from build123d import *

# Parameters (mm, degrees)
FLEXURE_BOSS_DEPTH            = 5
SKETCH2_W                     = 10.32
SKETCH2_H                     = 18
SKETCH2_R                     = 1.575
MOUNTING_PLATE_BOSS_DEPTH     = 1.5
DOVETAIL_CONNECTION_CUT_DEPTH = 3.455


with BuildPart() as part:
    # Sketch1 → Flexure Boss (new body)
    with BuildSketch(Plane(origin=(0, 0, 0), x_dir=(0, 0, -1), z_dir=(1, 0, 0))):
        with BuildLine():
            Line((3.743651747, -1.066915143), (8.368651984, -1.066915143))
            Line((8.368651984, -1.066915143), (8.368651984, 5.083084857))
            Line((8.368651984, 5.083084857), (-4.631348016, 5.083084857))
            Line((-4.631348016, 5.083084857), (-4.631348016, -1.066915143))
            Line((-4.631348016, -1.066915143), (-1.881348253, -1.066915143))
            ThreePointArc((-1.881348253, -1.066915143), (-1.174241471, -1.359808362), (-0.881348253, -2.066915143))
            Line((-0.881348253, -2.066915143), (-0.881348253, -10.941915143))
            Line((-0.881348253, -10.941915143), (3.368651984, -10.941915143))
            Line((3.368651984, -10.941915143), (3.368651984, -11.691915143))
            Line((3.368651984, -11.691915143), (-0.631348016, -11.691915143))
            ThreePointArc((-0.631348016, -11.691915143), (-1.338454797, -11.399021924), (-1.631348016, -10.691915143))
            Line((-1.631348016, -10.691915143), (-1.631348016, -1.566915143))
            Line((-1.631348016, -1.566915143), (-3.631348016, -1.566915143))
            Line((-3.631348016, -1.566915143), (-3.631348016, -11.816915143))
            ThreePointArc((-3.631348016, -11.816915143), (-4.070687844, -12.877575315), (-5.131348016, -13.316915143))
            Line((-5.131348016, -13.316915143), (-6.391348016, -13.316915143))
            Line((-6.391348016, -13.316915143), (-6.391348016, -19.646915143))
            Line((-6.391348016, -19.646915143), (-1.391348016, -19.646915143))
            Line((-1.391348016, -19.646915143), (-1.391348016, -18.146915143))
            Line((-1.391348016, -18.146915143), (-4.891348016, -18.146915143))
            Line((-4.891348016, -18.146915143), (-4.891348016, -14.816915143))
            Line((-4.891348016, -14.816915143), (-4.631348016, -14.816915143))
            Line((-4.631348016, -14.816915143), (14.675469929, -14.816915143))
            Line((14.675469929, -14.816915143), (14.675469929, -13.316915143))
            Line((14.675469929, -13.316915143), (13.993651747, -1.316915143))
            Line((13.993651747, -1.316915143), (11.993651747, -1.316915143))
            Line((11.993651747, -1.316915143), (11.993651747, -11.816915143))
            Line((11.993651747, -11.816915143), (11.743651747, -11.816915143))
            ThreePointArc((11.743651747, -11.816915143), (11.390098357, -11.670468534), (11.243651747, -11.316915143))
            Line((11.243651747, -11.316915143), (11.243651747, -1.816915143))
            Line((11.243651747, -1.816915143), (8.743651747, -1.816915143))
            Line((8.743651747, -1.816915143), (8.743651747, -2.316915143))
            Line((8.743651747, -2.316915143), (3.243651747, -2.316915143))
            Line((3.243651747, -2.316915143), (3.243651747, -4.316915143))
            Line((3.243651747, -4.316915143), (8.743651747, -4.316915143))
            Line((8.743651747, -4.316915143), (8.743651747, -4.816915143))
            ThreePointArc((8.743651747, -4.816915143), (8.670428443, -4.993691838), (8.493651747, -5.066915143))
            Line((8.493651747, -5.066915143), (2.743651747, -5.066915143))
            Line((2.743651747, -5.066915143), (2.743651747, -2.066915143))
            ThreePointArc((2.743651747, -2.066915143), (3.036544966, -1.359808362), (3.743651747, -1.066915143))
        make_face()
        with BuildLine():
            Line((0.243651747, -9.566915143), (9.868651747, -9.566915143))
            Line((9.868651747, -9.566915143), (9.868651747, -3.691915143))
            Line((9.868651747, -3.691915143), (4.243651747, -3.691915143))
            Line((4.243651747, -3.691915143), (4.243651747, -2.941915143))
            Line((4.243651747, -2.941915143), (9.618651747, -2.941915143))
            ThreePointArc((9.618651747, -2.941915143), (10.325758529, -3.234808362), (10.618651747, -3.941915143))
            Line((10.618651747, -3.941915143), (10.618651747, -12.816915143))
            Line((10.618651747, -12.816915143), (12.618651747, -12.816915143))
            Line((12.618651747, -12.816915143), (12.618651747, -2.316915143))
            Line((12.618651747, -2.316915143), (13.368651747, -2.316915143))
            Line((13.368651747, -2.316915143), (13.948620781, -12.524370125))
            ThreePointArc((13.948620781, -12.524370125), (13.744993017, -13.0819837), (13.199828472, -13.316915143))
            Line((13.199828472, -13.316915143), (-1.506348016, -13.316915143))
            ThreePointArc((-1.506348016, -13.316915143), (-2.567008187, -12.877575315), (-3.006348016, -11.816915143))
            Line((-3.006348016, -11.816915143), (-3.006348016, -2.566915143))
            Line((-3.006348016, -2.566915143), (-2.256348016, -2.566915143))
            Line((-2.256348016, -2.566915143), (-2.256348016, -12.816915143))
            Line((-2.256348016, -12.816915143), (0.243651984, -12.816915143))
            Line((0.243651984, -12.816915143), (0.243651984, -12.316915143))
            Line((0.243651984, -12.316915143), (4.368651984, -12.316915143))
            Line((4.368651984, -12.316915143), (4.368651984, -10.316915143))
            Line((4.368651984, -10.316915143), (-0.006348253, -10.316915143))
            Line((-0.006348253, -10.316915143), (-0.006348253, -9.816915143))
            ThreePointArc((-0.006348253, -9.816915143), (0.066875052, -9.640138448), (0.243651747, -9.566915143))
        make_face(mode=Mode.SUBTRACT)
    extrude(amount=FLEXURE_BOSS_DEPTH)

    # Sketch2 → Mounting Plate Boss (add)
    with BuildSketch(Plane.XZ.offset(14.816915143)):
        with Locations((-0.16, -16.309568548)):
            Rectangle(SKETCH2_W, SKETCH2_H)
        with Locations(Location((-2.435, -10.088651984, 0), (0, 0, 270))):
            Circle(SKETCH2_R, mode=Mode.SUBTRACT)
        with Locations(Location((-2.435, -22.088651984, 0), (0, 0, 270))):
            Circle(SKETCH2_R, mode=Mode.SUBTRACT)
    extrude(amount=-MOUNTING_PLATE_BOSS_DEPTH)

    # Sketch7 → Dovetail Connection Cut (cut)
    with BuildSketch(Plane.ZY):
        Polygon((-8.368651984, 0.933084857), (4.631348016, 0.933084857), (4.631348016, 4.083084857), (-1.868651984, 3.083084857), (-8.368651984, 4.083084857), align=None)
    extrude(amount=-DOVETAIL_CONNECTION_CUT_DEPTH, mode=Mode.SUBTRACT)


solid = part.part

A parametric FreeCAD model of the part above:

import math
import FreeCAD as App
import Part
import Sketcher


def add_polygon(sketch, points):
    """Adds a closed chain of lines whose ends are joined by coincident constraints."""
    first, n = sketch.GeometryCount, len(points)
    for a, b in zip(points, points[1:] + points[:1]):
        sketch.addGeometry(Part.LineSegment(App.Vector(*a, 0), App.Vector(*b, 0)), False)
    for i in range(n):
        sketch.addConstraint(Sketcher.Constraint("Coincident", first + i, 2, first + (i + 1) % n, 1))

doc = App.newDocument("Part")
body = doc.addObject("PartDesign::Body", "Body")

sketch1 = doc.addObject("Sketcher::SketchObject", "Sketch")
body.addObject(sketch1)
sketch1.AttachmentSupport = (doc.YZ_Plane, [""])
sketch1.MapMode = "FlatFace"
sketch1.addGeometry([
    Part.LineSegment(App.Vector(-1.07, -3.74, 0), App.Vector(-1.07, -8.37, 0)),
    Part.LineSegment(App.Vector(-1.07, -8.37, 0), App.Vector(5.08, -8.37, 0)),
    Part.LineSegment(App.Vector(5.08, -8.37, 0), App.Vector(5.08, 4.63, 0)),
    Part.LineSegment(App.Vector(5.08, 4.63, 0), App.Vector(-1.07, 4.63, 0)),
    Part.LineSegment(App.Vector(-1.07, 4.63, 0), App.Vector(-1.07, 1.88, 0)),
    Part.ArcOfCircle(Part.Circle(App.Vector(-2.07, 1.88, 0), App.Vector(0, 0, 1), 1), math.radians(-90), math.radians(0)),
    Part.LineSegment(App.Vector(-2.07, 0.88, 0), App.Vector(-10.94, 0.88, 0)),
    Part.LineSegment(App.Vector(-10.94, 0.88, 0), App.Vector(-10.94, -3.37, 0)),
    Part.LineSegment(App.Vector(-10.94, -3.37, 0), App.Vector(-11.69, -3.37, 0)),
    Part.LineSegment(App.Vector(-11.69, -3.37, 0), App.Vector(-11.69, 0.63, 0)),
    Part.ArcOfCircle(Part.Circle(App.Vector(-10.69, 0.63, 0), App.Vector(0, 0, 1), 1), math.radians(90), math.radians(180)),
    Part.LineSegment(App.Vector(-10.69, 1.63, 0), App.Vector(-1.57, 1.63, 0)),
    Part.LineSegment(App.Vector(-1.57, 1.63, 0), App.Vector(-1.57, 3.63, 0)),
    Part.LineSegment(App.Vector(-1.57, 3.63, 0), App.Vector(-11.82, 3.63, 0)),
    Part.ArcOfCircle(Part.Circle(App.Vector(-11.82, 5.13, 0), App.Vector(0, 0, 1), 1.5), math.radians(180), math.radians(270)),
    Part.LineSegment(App.Vector(-13.32, 5.13, 0), App.Vector(-13.32, 6.39, 0)),
    Part.LineSegment(App.Vector(-13.32, 6.39, 0), App.Vector(-19.65, 6.39, 0)),
    Part.LineSegment(App.Vector(-19.65, 6.39, 0), App.Vector(-19.65, 1.39, 0)),
    Part.LineSegment(App.Vector(-19.65, 1.39, 0), App.Vector(-18.15, 1.39, 0)),
    Part.LineSegment(App.Vector(-18.15, 1.39, 0), App.Vector(-18.15, 4.89, 0)),
    Part.LineSegment(App.Vector(-18.15, 4.89, 0), App.Vector(-14.82, 4.89, 0)),
    Part.LineSegment(App.Vector(-14.82, 4.89, 0), App.Vector(-14.82, -14.68, 0)),
    Part.LineSegment(App.Vector(-14.82, -14.68, 0), App.Vector(-13.32, -14.68, 0)),
    Part.LineSegment(App.Vector(-13.32, -14.68, 0), App.Vector(-1.32, -13.99, 0)),
    Part.LineSegment(App.Vector(-1.32, -13.99, 0), App.Vector(-1.32, -11.99, 0)),
    Part.LineSegment(App.Vector(-1.32, -11.99, 0), App.Vector(-11.82, -11.99, 0)),
    Part.LineSegment(App.Vector(-11.82, -11.99, 0), App.Vector(-11.82, -11.74, 0)),
    Part.ArcOfCircle(Part.Circle(App.Vector(-11.32, -11.74, 0), App.Vector(0, 0, 1), 0.5), math.radians(90), math.radians(180)),
    Part.LineSegment(App.Vector(-11.32, -11.24, 0), App.Vector(-1.82, -11.24, 0)),
    Part.LineSegment(App.Vector(-1.82, -11.24, 0), App.Vector(-1.82, -8.74, 0)),
    Part.LineSegment(App.Vector(-1.82, -8.74, 0), App.Vector(-2.32, -8.74, 0)),
    Part.LineSegment(App.Vector(-2.32, -8.74, 0), App.Vector(-2.32, -3.24, 0)),
    Part.LineSegment(App.Vector(-2.32, -3.24, 0), App.Vector(-4.32, -3.24, 0)),
    Part.LineSegment(App.Vector(-4.32, -3.24, 0), App.Vector(-4.32, -8.74, 0)),
    Part.LineSegment(App.Vector(-4.32, -8.74, 0), App.Vector(-4.82, -8.74, 0)),
    Part.ArcOfCircle(Part.Circle(App.Vector(-4.82, -8.49, 0), App.Vector(0, 0, 1), 0.25), math.radians(180), math.radians(270)),
    Part.LineSegment(App.Vector(-5.07, -8.49, 0), App.Vector(-5.07, -2.74, 0)),
    Part.LineSegment(App.Vector(-5.07, -2.74, 0), App.Vector(-2.07, -2.74, 0)),
    Part.ArcOfCircle(Part.Circle(App.Vector(-2.07, -3.74, 0), App.Vector(0, 0, 1), 1), math.radians(0), math.radians(90)),
    Part.ArcOfCircle(Part.Circle(App.Vector(-9.82, -0.24, 0), App.Vector(0, 0, 1), 0.25), math.radians(0), math.radians(90)),
    Part.LineSegment(App.Vector(-9.57, -0.24, 0), App.Vector(-9.57, -9.87, 0)),
    Part.LineSegment(App.Vector(-9.57, -9.87, 0), App.Vector(-3.69, -9.87, 0)),
    Part.LineSegment(App.Vector(-3.69, -9.87, 0), App.Vector(-3.69, -4.24, 0)),
    Part.LineSegment(App.Vector(-3.69, -4.24, 0), App.Vector(-2.94, -4.24, 0)),
    Part.LineSegment(App.Vector(-2.94, -4.24, 0), App.Vector(-2.94, -9.62, 0)),
    Part.ArcOfCircle(Part.Circle(App.Vector(-3.94, -9.62, 0), App.Vector(0, 0, 1), 1), math.radians(-90), math.radians(0)),
    Part.LineSegment(App.Vector(-3.94, -10.62, 0), App.Vector(-12.82, -10.62, 0)),
    Part.LineSegment(App.Vector(-12.82, -10.62, 0), App.Vector(-12.82, -12.62, 0)),
    Part.LineSegment(App.Vector(-12.82, -12.62, 0), App.Vector(-2.32, -12.62, 0)),
    Part.LineSegment(App.Vector(-2.32, -12.62, 0), App.Vector(-2.32, -13.37, 0)),
    Part.LineSegment(App.Vector(-2.32, -13.37, 0), App.Vector(-12.52, -13.95, 0)),
    Part.ArcOfCircle(Part.Circle(App.Vector(-12.57, -13.2, 0), App.Vector(0, 0, 1), 0.75), math.radians(-180), math.radians(-87)),
    Part.LineSegment(App.Vector(-13.32, -13.2, 0), App.Vector(-13.32, 1.51, 0)),
    Part.ArcOfCircle(Part.Circle(App.Vector(-11.82, 1.51, 0), App.Vector(0, 0, 1), 1.5), math.radians(90), math.radians(180)),
    Part.LineSegment(App.Vector(-11.82, 3.01, 0), App.Vector(-2.57, 3.01, 0)),
    Part.LineSegment(App.Vector(-2.57, 3.01, 0), App.Vector(-2.57, 2.26, 0)),
    Part.LineSegment(App.Vector(-2.57, 2.26, 0), App.Vector(-12.82, 2.26, 0)),
    Part.LineSegment(App.Vector(-12.82, 2.26, 0), App.Vector(-12.82, -0.24, 0)),
    Part.LineSegment(App.Vector(-12.82, -0.24, 0), App.Vector(-12.32, -0.24, 0)),
    Part.LineSegment(App.Vector(-12.32, -0.24, 0), App.Vector(-12.32, -4.37, 0)),
    Part.LineSegment(App.Vector(-12.32, -4.37, 0), App.Vector(-10.32, -4.37, 0)),
    Part.LineSegment(App.Vector(-10.32, -4.37, 0), App.Vector(-10.32, 0.01, 0)),
    Part.LineSegment(App.Vector(-10.32, 0.01, 0), App.Vector(-9.82, 0.01, 0)),
], False)
sketch1.addConstraint([
    Sketcher.Constraint("Coincident", 0, 2, 1, 1),
    Sketcher.Constraint("Coincident", 1, 2, 2, 1),
    Sketcher.Constraint("Coincident", 2, 2, 3, 1),
    Sketcher.Constraint("Coincident", 3, 2, 4, 1),
    Sketcher.Constraint("Tangent", 4, 2, 5, 2),
    Sketcher.Constraint("Tangent", 5, 1, 6, 1),
    Sketcher.Constraint("Coincident", 6, 2, 7, 1),
    Sketcher.Constraint("Coincident", 7, 2, 8, 1),
    Sketcher.Constraint("Coincident", 8, 2, 9, 1),
    Sketcher.Constraint("Tangent", 9, 2, 10, 2),
    Sketcher.Constraint("Tangent", 10, 1, 11, 1),
    Sketcher.Constraint("Coincident", 11, 2, 12, 1),
    Sketcher.Constraint("Coincident", 12, 2, 13, 1),
    Sketcher.Constraint("Tangent", 13, 2, 14, 2),
    Sketcher.Constraint("Tangent", 14, 1, 15, 1),
    Sketcher.Constraint("Coincident", 15, 2, 16, 1),
    Sketcher.Constraint("Coincident", 16, 2, 17, 1),
    Sketcher.Constraint("Coincident", 17, 2, 18, 1),
    Sketcher.Constraint("Coincident", 18, 2, 19, 1),
    Sketcher.Constraint("Coincident", 19, 2, 20, 1),
    Sketcher.Constraint("Coincident", 20, 2, 21, 1),
    Sketcher.Constraint("Coincident", 21, 2, 22, 1),
    Sketcher.Constraint("Coincident", 22, 2, 23, 1),
    Sketcher.Constraint("Coincident", 23, 2, 24, 1),
    Sketcher.Constraint("Coincident", 24, 2, 25, 1),
    Sketcher.Constraint("Coincident", 25, 2, 26, 1),
    Sketcher.Constraint("Tangent", 26, 2, 27, 2),
    Sketcher.Constraint("Tangent", 27, 1, 28, 1),
    Sketcher.Constraint("Coincident", 28, 2, 29, 1),
    Sketcher.Constraint("Coincident", 29, 2, 30, 1),
    Sketcher.Constraint("Coincident", 30, 2, 31, 1),
    Sketcher.Constraint("Coincident", 31, 2, 32, 1),
    Sketcher.Constraint("Coincident", 32, 2, 33, 1),
    Sketcher.Constraint("Coincident", 33, 2, 34, 1),
    Sketcher.Constraint("Tangent", 34, 2, 35, 2),
    Sketcher.Constraint("Tangent", 35, 1, 36, 1),
    Sketcher.Constraint("Coincident", 36, 2, 37, 1),
    Sketcher.Constraint("Tangent", 37, 2, 38, 2),
    Sketcher.Constraint("Tangent", 38, 1, 0, 1),
    Sketcher.Constraint("Tangent", 39, 1, 40, 1),
    Sketcher.Constraint("Coincident", 40, 2, 41, 1),
    Sketcher.Constraint("Coincident", 41, 2, 42, 1),
    Sketcher.Constraint("Coincident", 42, 2, 43, 1),
    Sketcher.Constraint("Coincident", 43, 2, 44, 1),
    Sketcher.Constraint("Tangent", 44, 2, 45, 2),
    Sketcher.Constraint("Tangent", 45, 1, 46, 1),
    Sketcher.Constraint("Coincident", 46, 2, 47, 1),
    Sketcher.Constraint("Coincident", 47, 2, 48, 1),
    Sketcher.Constraint("Coincident", 48, 2, 49, 1),
    Sketcher.Constraint("Coincident", 49, 2, 50, 1),
    Sketcher.Constraint("Tangent", 50, 2, 51, 2),
    Sketcher.Constraint("Tangent", 51, 1, 52, 1),
    Sketcher.Constraint("Tangent", 52, 2, 53, 2),
    Sketcher.Constraint("Tangent", 53, 1, 54, 1),
    Sketcher.Constraint("Coincident", 54, 2, 55, 1),
    Sketcher.Constraint("Coincident", 55, 2, 56, 1),
    Sketcher.Constraint("Coincident", 56, 2, 57, 1),
    Sketcher.Constraint("Coincident", 57, 2, 58, 1),
    Sketcher.Constraint("Coincident", 58, 2, 59, 1),
    Sketcher.Constraint("Coincident", 59, 2, 60, 1),
    Sketcher.Constraint("Coincident", 60, 2, 61, 1),
    Sketcher.Constraint("Coincident", 61, 2, 62, 1),
    Sketcher.Constraint("Tangent", 62, 2, 39, 2),
    Sketcher.Constraint("Vertical", 0),
    Sketcher.Constraint("Horizontal", 1),
    Sketcher.Constraint("Vertical", 2),
    Sketcher.Constraint("Horizontal", 3),
    Sketcher.Constraint("Vertical", 4),
    Sketcher.Constraint("Horizontal", 6),
    Sketcher.Constraint("Vertical", 7),
    Sketcher.Constraint("Horizontal", 8),
    Sketcher.Constraint("Vertical", 9),
    Sketcher.Constraint("Horizontal", 11),
    Sketcher.Constraint("Vertical", 12),
    Sketcher.Constraint("Horizontal", 13),
    Sketcher.Constraint("Vertical", 15),
    Sketcher.Constraint("Horizontal", 16),
    Sketcher.Constraint("Vertical", 17),
    Sketcher.Constraint("Horizontal", 18),
    Sketcher.Constraint("Vertical", 19),
    Sketcher.Constraint("Horizontal", 20),
    Sketcher.Constraint("Vertical", 21),
    Sketcher.Constraint("Horizontal", 22),
    Sketcher.Constraint("Vertical", 24),
    Sketcher.Constraint("Horizontal", 25),
    Sketcher.Constraint("Vertical", 26),
    Sketcher.Constraint("Horizontal", 28),
    Sketcher.Constraint("Vertical", 29),
    Sketcher.Constraint("Horizontal", 30),
    Sketcher.Constraint("Vertical", 31),
    Sketcher.Constraint("Horizontal", 32),
    Sketcher.Constraint("Vertical", 33),
    Sketcher.Constraint("Horizontal", 34),
    Sketcher.Constraint("Vertical", 36),
    Sketcher.Constraint("Horizontal", 37),
    Sketcher.Constraint("Vertical", 40),
    Sketcher.Constraint("Horizontal", 41),
    Sketcher.Constraint("Vertical", 42),
    Sketcher.Constraint("Horizontal", 43),
    Sketcher.Constraint("Vertical", 44),
    Sketcher.Constraint("Horizontal", 46),
    Sketcher.Constraint("Vertical", 47),
    Sketcher.Constraint("Horizontal", 48),
    Sketcher.Constraint("Vertical", 49),
    Sketcher.Constraint("Vertical", 52),
    Sketcher.Constraint("Horizontal", 54),
    Sketcher.Constraint("Vertical", 55),
    Sketcher.Constraint("Horizontal", 56),
    Sketcher.Constraint("Vertical", 57),
    Sketcher.Constraint("Horizontal", 58),
    Sketcher.Constraint("Vertical", 59),
    Sketcher.Constraint("Horizontal", 60),
    Sketcher.Constraint("Vertical", 61),
    Sketcher.Constraint("Horizontal", 62),
    Sketcher.Constraint("Equal", 5, 10),
    Sketcher.Constraint("Equal", 10, 38),
    Sketcher.Constraint("Equal", 35, 39),
    Sketcher.Constraint("Equal", 38, 45),
    Sketcher.Constraint("Equal", 14, 53),
    Sketcher.Constraint("Parallel", 23, 50),
    Sketcher.Constraint("Horizontal", 30, 2, 33, 2),
    Sketcher.Constraint("Horizontal", 39, 1, 57, 2),
    Sketcher.Constraint("Vertical", 5, 3, 38, 3),
    Sketcher.Constraint("Vertical", 14, 3, 53, 3),
    Sketcher.Constraint("Vertical", 15, 2, 22, 2),
    Sketcher.Constraint("Vertical", 13, 2, 25, 2),
    Sketcher.Constraint("Vertical", 31, 2, 48, 2),
    Sketcher.Constraint("Vertical", 47, 2, 56, 2),
    Sketcher.Constraint("Equal", 18, 22),
    Sketcher.Constraint("Equal", 30, 34),
    Sketcher.Constraint("Equal", 8, 43),
    Sketcher.Constraint("Equal", 6, 46),
    Sketcher.Constraint("Equal", 25, 48),
    Sketcher.Constraint("Equal", 13, 56),
    Sketcher.Constraint("Equal", 34, 58),
    Sketcher.Constraint("Equal", 32, 60),
    Sketcher.Constraint("Equal", 58, 62),
    Sketcher.Constraint("Equal", 60, 12),
    Sketcher.Constraint("Equal", 12, 24),
    Sketcher.Constraint("Equal", 24, 47),
    Sketcher.Constraint("Equal", 43, 49),
    Sketcher.Constraint("Equal", 49, 55),
    Sketcher.Constraint("Equal", 29, 57),
    Sketcher.Constraint("Radius", 5, 1.0),
    Sketcher.Constraint("Radius", 14, 1.5),
    Sketcher.Constraint("Radius", 27, 0.5),
    Sketcher.Constraint("DistanceX", 32, 2, 32, 1, 2.0),
    Sketcher.Constraint("DistanceX", 37, 1, 37, 2, 3.0),
    Sketcher.Constraint("DistanceY", 2, 1, 2, 2, 13.0),
    Sketcher.Constraint("DistanceY", 9, 1, 9, 2, 4.0),
    Sketcher.Constraint("DistanceY", 17, 2, 17, 1, 5.0),
    Sketcher.Constraint("Radius", 35, 0.25),
    Sketcher.Constraint("Radius", 51, 0.75),
    Sketcher.Constraint("DistanceX", 18, 1, 18, 2, 1.5),
    Sketcher.Constraint("DistanceX", 25, 2, 25, 1, 10.5),
    Sketcher.Constraint("DistanceX", 28, 1, 28, 2, 9.5),
    Sketcher.Constraint("DistanceX", 30, 2, 30, 1, 0.5),
    Sketcher.Constraint("DistanceY", 19, 1, 19, 2, 3.5),
    Sketcher.Constraint("DistanceY", 29, 1, 29, 2, 2.5),
    Sketcher.Constraint("DistanceY", 31, 1, 31, 2, 5.5),
    Sketcher.Constraint("DistanceX", 1, 1, 1, 2, 6.15),
    Sketcher.Constraint("DistanceX", 8, 2, 8, 1, 0.75),
    Sketcher.Constraint("DistanceX", 13, 2, 13, 1, 10.25),
    Sketcher.Constraint("DistanceX", 16, 2, 16, 1, 6.33),
    Sketcher.Constraint("DistanceY", 4, 2, 4, 1, 2.75),
    Sketcher.Constraint("DistanceY", 7, 2, 7, 1, 4.25),
    Sketcher.Constraint("DistanceY", 15, 1, 15, 2, 1.26),
    Sketcher.Constraint("DistanceY", 26, 1, 26, 2, 0.25),
    Sketcher.Constraint("DistanceY", 36, 1, 36, 2, 5.75),
    Sketcher.Constraint("DistanceX", 6, 2, 6, 1, 8.875),
    Sketcher.Constraint("DistanceY", 0, 2, 0, 1, 4.625),
    Sketcher.Constraint("DistanceY", 40, 2, 40, 1, 9.625),
    Sketcher.Constraint("DistanceY", 42, 1, 42, 2, 5.625),
    Sketcher.Constraint("DistanceY", 44, 2, 44, 1, 5.375),
    Sketcher.Constraint("DistanceY", 59, 2, 59, 1, 4.125),
    Sketcher.Constraint("Distance", 50, 10.223918),
    Sketcher.Constraint("DistanceY", -1, 1, 5, 3, 1.881348),
    Sketcher.Constraint("DistanceY", 39, 3, -1, 1, 0.243652),
    Sketcher.Constraint("DistanceX", 50, 2, -1, 1, 12.52437),
])
pad1 = doc.addObject("PartDesign::Pad", "Pad")
body.addObject(pad1)
pad1.Profile = sketch1
pad1.Length = 5

sketch2 = doc.addObject("Sketcher::SketchObject", "Sketch001")
body.addObject(sketch2)
sketch2.AttachmentSupport = (doc.XZ_Plane, [""])
sketch2.MapMode = "FlatFace"
sketch2.AttachmentOffset = App.Placement(App.Vector(0, 0, 14.816915), App.Rotation())
add_polygon(sketch2, [(-5.3, -7.3), (-5.3, -25.3), (5, -25.3), (5, -7.3)])
sketch2.addGeometry(Part.Circle(App.Vector(-2.4, -22.1, 0), App.Vector(0, 0, 1), 1.6), False)
sketch2.addGeometry(Part.Circle(App.Vector(-2.4, -10.1, 0), App.Vector(0, 0, 1), 1.6), False)
sketch2.addConstraint([
    Sketcher.Constraint("Vertical", 0),
    Sketcher.Constraint("Horizontal", 1),
    Sketcher.Constraint("Vertical", 2),
    Sketcher.Constraint("Horizontal", 3),
    Sketcher.Constraint("Equal", 4, 5),
    Sketcher.Constraint("Vertical", 4, 3, 5, 3),
    Sketcher.Constraint("Diameter", 4, 3.15),
    Sketcher.Constraint("DistanceY", 0, 2, 0, 1, 18.0),
    Sketcher.Constraint("DistanceX", -1, 1, 1, 2, 5.0),
    Sketcher.Constraint("DistanceY", 4, 3, 5, 3, 12.0),
    Sketcher.Constraint("DistanceX", 1, 1, 1, 2, 10.32),
    Sketcher.Constraint("DistanceX", 4, 3, -1, 1, 2.435),
    Sketcher.Constraint("DistanceY", 4, 3, -1, 1, 22.088652),
    Sketcher.Constraint("DistanceY", 0, 2, -1, 1, 25.309569),
])
pad2 = doc.addObject("PartDesign::Pad", "Pad001")
body.addObject(pad2)
pad2.Profile = sketch2
pad2.Length = 1.5
pad2.Reversed = True

sketch3 = doc.addObject("Sketcher::SketchObject", "Sketch002")
body.addObject(sketch3)
sketch3.AttachmentSupport = (doc.YZ_Plane, [""])
sketch3.MapMode = "FlatFace"
add_polygon(sketch3, [(0.9, -8.4), (0.9, 4.6), (4.1, 4.6), (3.1, -1.9), (4.1, -8.4)])
sketch3.addConstraint([
    Sketcher.Constraint("Vertical", 0),
    Sketcher.Constraint("Horizontal", 1),
    Sketcher.Constraint("Horizontal", 4),
    Sketcher.Constraint("Vertical", 1, 2, 3, 2),
    Sketcher.Constraint("Equal", 2, 3),
    Sketcher.Constraint("DistanceY", 0, 1, 0, 2, 13.0),
    Sketcher.Constraint("DistanceX", 2, 2, 1, 2, 1.0),
    Sketcher.Constraint("DistanceX", 1, 1, 1, 2, 3.15),
    Sketcher.Constraint("DistanceY", -1, 1, 0, 2, 4.631348),
    Sketcher.Constraint("DistanceX", -1, 1, 0, 2, 0.933085),
])
pocket1 = doc.addObject("PartDesign::Pocket", "Pocket")
body.addObject(pocket1)
pocket1.Profile = sketch3
pocket1.Length = 3.455
pocket1.Reversed = True

doc.recompute()
